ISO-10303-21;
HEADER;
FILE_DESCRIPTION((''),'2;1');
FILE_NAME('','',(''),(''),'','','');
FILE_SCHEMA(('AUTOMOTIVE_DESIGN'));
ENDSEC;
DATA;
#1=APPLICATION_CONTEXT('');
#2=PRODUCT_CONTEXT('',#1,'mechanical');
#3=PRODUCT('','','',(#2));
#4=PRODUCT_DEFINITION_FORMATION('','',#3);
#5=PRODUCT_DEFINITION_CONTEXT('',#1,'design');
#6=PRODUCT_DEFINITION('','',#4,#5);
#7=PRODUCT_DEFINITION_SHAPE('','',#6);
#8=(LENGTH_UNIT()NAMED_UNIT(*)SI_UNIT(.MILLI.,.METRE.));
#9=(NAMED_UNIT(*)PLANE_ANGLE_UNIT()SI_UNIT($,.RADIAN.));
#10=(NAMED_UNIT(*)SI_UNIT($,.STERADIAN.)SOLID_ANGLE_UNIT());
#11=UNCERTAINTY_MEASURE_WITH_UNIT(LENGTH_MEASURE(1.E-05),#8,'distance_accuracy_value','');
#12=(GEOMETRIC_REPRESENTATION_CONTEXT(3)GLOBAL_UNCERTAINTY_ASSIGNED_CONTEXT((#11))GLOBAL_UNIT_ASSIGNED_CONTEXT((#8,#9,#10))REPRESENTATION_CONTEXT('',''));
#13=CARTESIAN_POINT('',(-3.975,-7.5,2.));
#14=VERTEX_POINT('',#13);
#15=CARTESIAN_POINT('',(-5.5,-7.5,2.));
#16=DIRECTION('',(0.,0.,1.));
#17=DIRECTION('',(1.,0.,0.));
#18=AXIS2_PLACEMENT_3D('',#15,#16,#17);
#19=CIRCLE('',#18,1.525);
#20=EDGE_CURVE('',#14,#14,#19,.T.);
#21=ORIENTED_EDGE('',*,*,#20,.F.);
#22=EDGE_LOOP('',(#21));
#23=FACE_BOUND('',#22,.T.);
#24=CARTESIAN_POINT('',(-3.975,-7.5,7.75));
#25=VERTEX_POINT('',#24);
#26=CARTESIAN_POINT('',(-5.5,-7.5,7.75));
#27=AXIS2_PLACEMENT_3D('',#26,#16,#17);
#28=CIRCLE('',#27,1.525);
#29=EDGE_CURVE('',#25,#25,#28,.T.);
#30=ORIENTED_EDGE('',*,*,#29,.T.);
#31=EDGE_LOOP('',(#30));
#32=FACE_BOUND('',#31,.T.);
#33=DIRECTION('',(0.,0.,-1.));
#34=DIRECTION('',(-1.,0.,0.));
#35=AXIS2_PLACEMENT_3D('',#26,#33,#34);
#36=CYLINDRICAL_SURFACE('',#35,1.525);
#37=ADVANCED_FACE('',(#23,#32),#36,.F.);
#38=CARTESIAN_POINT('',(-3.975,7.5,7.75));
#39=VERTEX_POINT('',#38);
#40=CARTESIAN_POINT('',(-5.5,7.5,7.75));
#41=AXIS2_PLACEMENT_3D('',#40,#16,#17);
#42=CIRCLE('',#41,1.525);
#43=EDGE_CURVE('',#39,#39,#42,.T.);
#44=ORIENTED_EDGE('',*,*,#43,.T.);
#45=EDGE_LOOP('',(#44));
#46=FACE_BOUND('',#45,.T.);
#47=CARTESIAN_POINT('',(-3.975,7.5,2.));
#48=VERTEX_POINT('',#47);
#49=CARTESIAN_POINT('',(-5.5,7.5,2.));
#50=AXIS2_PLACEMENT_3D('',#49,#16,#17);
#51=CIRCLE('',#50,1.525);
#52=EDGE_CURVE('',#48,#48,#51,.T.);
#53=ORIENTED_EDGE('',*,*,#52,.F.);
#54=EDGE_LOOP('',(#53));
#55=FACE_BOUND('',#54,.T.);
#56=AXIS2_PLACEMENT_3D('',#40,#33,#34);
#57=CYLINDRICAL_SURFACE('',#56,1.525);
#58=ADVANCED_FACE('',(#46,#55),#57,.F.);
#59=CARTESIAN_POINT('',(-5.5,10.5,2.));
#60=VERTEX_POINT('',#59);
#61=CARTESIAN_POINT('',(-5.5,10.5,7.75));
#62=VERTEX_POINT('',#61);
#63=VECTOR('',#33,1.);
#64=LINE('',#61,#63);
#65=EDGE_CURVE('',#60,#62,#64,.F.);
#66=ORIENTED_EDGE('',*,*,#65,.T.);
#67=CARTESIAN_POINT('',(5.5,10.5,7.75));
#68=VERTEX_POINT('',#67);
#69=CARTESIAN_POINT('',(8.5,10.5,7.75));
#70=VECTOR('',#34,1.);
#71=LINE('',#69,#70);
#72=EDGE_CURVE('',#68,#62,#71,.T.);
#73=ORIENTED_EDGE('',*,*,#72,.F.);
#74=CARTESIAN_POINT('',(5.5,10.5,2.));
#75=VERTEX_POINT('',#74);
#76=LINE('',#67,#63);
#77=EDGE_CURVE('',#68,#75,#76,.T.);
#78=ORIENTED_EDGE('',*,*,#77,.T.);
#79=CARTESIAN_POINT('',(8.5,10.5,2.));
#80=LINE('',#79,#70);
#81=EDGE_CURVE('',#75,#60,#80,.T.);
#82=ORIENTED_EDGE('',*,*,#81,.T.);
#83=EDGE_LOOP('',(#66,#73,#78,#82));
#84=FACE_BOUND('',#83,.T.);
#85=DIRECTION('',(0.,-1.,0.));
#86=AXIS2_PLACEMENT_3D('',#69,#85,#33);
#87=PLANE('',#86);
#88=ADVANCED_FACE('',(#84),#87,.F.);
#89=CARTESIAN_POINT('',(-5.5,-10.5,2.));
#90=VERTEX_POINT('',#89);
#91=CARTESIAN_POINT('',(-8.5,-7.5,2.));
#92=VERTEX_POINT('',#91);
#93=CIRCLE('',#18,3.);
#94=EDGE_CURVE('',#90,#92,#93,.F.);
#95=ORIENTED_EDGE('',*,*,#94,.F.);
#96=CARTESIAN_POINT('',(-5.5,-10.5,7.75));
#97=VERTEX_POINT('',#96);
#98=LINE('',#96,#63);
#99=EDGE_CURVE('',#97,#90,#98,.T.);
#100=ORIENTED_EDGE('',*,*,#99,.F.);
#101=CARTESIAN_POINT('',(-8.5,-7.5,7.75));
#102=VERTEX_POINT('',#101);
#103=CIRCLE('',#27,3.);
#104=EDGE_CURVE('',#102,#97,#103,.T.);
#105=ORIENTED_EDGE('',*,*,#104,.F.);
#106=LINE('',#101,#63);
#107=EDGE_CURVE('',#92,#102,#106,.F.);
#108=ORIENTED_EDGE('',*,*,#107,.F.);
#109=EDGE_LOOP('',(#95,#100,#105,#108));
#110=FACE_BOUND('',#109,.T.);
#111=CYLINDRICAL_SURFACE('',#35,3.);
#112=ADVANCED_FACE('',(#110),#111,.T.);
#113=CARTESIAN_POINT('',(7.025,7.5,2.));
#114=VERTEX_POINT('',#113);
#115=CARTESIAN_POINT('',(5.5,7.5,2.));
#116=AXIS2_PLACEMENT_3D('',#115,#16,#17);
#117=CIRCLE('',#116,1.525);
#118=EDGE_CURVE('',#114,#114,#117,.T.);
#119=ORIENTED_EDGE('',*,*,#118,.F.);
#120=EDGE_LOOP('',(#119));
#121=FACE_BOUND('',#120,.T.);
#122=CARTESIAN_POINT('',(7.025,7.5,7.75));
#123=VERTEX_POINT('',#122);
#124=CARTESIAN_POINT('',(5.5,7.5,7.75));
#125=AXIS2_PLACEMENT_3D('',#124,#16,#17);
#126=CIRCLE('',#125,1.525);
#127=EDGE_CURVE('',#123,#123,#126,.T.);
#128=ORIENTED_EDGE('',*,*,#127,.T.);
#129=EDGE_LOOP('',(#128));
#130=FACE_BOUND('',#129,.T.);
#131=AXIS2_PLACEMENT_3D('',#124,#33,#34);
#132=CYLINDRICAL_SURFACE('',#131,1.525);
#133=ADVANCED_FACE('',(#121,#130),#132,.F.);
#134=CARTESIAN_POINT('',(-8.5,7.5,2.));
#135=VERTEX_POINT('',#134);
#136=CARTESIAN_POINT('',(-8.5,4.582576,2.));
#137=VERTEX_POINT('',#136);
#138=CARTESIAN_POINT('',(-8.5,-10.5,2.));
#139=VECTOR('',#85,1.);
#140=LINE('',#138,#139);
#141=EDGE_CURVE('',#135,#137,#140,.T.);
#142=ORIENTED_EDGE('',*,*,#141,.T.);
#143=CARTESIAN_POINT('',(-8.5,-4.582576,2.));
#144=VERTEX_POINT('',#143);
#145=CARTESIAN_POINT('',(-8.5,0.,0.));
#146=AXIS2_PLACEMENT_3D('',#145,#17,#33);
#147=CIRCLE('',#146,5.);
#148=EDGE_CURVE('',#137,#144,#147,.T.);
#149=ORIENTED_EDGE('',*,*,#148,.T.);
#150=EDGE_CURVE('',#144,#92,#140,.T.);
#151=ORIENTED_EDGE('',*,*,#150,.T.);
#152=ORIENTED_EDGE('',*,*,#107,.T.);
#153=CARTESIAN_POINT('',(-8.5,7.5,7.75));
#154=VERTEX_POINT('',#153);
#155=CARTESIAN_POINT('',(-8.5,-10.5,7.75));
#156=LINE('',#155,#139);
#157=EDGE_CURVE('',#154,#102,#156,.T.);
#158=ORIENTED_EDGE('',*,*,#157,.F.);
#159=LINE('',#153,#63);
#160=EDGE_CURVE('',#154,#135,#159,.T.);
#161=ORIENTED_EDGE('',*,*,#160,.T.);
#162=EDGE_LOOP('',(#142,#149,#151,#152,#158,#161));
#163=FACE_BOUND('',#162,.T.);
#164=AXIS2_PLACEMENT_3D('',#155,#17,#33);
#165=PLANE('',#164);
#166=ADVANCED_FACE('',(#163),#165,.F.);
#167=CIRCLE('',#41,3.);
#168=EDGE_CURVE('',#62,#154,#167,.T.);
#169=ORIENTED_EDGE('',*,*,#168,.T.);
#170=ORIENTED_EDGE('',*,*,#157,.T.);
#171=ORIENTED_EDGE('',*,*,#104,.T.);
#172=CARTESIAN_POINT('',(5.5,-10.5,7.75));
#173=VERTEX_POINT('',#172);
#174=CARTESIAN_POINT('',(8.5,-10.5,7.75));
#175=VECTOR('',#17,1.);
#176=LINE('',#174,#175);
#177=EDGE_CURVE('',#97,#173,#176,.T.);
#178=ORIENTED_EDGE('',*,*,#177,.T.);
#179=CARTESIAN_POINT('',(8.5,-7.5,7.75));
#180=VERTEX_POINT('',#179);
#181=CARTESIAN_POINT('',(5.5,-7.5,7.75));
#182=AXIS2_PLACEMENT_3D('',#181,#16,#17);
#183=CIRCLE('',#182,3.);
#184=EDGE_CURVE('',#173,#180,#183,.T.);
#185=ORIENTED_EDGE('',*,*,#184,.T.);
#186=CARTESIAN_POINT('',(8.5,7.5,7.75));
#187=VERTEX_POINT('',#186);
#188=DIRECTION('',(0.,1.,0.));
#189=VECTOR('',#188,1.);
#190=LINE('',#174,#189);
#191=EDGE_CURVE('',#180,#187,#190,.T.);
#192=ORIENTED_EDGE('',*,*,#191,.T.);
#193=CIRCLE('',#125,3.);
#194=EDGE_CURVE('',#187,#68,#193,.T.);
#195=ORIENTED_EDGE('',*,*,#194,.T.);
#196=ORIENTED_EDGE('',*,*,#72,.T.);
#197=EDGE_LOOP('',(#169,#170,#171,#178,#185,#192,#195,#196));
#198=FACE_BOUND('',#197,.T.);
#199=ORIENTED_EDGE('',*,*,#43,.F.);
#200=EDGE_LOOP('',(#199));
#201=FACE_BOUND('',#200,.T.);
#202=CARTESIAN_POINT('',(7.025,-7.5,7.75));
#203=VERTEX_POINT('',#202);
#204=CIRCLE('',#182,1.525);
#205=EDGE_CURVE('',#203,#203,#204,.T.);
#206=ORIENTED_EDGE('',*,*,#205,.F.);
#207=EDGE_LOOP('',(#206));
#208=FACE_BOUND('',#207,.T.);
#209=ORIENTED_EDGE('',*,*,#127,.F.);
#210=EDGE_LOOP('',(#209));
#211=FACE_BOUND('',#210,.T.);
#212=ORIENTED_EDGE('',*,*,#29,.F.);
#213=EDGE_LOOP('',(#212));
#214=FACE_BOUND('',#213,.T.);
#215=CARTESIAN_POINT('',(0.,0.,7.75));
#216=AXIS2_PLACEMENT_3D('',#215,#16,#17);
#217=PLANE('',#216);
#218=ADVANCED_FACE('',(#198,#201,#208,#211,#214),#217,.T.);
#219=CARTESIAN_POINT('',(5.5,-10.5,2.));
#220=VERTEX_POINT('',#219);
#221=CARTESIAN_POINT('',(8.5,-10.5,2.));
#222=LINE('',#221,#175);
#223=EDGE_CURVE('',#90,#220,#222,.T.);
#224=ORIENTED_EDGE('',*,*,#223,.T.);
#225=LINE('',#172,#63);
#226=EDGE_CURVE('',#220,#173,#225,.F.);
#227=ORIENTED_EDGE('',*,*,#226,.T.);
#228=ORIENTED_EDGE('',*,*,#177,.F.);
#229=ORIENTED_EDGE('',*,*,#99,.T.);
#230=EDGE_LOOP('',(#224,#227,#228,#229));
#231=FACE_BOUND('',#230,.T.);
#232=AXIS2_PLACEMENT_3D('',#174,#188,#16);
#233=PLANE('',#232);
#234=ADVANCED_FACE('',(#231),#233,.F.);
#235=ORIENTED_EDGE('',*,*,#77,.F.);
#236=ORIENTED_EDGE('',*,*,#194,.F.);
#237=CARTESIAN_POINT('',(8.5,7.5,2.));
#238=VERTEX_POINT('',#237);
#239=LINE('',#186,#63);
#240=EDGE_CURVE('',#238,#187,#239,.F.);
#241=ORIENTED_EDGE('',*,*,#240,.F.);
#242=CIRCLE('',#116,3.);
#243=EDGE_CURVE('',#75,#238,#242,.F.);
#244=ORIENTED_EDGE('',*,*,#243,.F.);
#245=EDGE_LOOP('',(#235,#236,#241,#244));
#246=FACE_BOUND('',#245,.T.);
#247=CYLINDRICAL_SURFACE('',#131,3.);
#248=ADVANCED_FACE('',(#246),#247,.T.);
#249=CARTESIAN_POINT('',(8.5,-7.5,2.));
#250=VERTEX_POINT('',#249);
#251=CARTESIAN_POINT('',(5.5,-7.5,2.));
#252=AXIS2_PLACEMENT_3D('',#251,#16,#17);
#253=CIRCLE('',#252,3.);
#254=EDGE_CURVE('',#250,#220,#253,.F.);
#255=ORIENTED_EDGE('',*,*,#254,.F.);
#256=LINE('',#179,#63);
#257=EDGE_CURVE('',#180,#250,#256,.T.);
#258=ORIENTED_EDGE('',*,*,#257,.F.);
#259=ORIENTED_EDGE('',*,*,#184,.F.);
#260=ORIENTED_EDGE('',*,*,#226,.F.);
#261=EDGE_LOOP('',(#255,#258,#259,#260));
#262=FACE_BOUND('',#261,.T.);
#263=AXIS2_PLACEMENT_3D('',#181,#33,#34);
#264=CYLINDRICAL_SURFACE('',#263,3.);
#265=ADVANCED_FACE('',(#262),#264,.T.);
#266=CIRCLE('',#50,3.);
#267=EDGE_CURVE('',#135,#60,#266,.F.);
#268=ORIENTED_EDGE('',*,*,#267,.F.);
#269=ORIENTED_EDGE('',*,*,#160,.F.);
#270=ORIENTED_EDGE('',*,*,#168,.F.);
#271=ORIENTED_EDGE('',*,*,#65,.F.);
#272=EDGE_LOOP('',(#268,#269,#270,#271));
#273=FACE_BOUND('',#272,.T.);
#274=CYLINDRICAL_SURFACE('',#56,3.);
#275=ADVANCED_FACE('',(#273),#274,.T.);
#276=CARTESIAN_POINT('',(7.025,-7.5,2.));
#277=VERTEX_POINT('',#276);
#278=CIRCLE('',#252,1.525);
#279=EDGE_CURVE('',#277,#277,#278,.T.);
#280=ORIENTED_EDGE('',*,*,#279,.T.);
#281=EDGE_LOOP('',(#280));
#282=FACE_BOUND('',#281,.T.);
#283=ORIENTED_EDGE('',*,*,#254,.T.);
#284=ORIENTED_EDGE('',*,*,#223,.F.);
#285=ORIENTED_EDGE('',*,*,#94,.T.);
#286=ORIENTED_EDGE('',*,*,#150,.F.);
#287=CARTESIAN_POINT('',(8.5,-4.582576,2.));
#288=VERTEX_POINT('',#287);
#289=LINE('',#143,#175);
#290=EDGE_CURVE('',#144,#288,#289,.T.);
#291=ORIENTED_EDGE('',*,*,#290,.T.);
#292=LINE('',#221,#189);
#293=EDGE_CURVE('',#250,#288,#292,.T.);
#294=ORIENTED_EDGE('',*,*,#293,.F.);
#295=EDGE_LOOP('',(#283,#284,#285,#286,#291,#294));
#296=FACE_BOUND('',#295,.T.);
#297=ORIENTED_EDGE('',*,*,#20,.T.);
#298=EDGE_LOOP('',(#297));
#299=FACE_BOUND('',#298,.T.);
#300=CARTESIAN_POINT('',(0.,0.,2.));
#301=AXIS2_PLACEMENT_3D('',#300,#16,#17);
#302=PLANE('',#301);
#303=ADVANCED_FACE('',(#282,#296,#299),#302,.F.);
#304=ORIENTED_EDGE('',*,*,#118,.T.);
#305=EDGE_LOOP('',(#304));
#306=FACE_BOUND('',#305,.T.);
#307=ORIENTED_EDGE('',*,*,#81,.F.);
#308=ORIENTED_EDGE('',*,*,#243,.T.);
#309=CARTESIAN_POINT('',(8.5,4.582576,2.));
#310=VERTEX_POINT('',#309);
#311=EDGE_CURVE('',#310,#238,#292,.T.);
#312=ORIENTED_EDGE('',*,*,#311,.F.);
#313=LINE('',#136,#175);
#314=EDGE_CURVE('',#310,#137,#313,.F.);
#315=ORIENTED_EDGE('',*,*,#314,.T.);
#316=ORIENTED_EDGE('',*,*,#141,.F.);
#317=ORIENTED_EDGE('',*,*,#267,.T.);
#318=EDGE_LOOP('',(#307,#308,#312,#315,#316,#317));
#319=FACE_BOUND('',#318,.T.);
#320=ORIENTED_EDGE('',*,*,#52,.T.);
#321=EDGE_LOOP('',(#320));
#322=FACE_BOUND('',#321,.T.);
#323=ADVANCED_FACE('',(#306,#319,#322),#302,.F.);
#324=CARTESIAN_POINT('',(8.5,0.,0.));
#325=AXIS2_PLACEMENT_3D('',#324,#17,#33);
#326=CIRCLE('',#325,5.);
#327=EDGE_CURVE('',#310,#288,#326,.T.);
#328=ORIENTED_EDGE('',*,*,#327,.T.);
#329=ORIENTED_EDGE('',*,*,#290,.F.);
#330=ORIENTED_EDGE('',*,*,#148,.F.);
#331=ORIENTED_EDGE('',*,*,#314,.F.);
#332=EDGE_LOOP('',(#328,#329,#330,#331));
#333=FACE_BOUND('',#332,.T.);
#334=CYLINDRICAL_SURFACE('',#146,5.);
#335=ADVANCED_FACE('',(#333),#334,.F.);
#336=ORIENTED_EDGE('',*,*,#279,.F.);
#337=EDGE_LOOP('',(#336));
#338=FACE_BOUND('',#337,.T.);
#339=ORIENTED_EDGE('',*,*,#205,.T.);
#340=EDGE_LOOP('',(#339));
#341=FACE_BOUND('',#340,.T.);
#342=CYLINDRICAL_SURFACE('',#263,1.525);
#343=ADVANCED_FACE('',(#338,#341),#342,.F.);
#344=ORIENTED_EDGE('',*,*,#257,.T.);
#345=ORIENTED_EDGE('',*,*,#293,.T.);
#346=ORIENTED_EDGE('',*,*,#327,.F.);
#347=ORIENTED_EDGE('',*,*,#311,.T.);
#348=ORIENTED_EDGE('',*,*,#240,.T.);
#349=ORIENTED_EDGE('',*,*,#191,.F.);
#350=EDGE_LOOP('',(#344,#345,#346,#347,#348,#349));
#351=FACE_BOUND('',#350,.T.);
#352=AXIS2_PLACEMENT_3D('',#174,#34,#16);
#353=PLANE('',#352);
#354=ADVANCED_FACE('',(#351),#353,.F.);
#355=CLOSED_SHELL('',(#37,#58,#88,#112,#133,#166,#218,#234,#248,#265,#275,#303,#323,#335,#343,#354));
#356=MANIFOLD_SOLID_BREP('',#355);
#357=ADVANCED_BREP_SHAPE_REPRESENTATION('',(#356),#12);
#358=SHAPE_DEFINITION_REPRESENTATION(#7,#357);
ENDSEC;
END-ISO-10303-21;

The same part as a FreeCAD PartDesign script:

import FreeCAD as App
import Part
import Sketcher

V = App.Vector


def edges_at(feature, points):
    """Names of the edges that pass closest to the given points."""
    edges = feature.Shape.Edges
    near = lambda p: min(range(len(edges)), key=lambda i: edges[i].distToShape(Part.Vertex(*p))[0])
    return sorted({f"Edge{near(p) + 1}" for p in points})

doc = App.newDocument("Part")
body = doc.addObject("PartDesign::Body", "Body")

# Sketch on XY plane
sketch1 = body.newObject("Sketcher::SketchObject", "Sketch")
sketch1.AttachmentSupport = (doc.getObject("XY_Plane"), [""])
sketch1.MapMode = "FlatFace"
sketch1.AttachmentOffset = App.Placement(V(0, 0, 2), App.Rotation())
sketch1.addGeometry(Part.LineSegment(V(-8.5, 10.5, 0), V(-8.5, -10.5, 0)), False)
sketch1.addGeometry(Part.LineSegment(V(-8.5, -10.5, 0), V(8.5, -10.5, 0)), False)
sketch1.addGeometry(Part.LineSegment(V(8.5, -10.5, 0), V(8.5, 10.5, 0)), False)
sketch1.addGeometry(Part.LineSegment(V(8.5, 10.5, 0), V(-8.5, 10.5, 0)), False)
sketch1.addGeometry(Part.Circle(V(-5.5, -7.5, 0), V(0, 0, 1), 1.525), False)
sketch1.addGeometry(Part.Circle(V(5.5, -7.5, 0), V(0, 0, 1), 1.525), False)
sketch1.addGeometry(Part.Circle(V(-5.5, 7.5, 0), V(0, 0, 1), 1.525), False)
sketch1.addGeometry(Part.Circle(V(5.5, 7.5, 0), V(0, 0, 1), 1.525), False)
sketch1.addConstraint(Sketcher.Constraint("Coincident", 0, 2, 1, 1))
sketch1.addConstraint(Sketcher.Constraint("Coincident", 1, 2, 2, 1))
sketch1.addConstraint(Sketcher.Constraint("Coincident", 2, 2, 3, 1))
sketch1.addConstraint(Sketcher.Constraint("Coincident", 3, 2, 0, 1))
sketch1.addConstraint(Sketcher.Constraint("Vertical", 0))
sketch1.addConstraint(Sketcher.Constraint("Horizontal", 1))
sketch1.addConstraint(Sketcher.Constraint("Vertical", 2))
sketch1.addConstraint(Sketcher.Constraint("Horizontal", 3))
sketch1.addConstraint(Sketcher.Constraint("Equal", 4, 5))
sketch1.addConstraint(Sketcher.Constraint("Equal", 5, 6))
sketch1.addConstraint(Sketcher.Constraint("Equal", 6, 7))
sketch1.addConstraint(Sketcher.Constraint("Symmetric", 5, 3, 6, 3, -1, 1))
sketch1.addConstraint(Sketcher.Constraint("Symmetric", 4, 3, 7, 3, -1, 1))
sketch1.addConstraint(Sketcher.Constraint("Symmetric", 0, 2, 2, 2, -1, 1))
sketch1.addConstraint(Sketcher.Constraint("Symmetric", 4, 3, 5, 3, -2))
sketch1.addConstraint(Sketcher.Constraint("Diameter", 4, 3.05))
sketch1.addConstraint(Sketcher.Constraint("DistanceX", 1, 1, 1, 2, 17.0))
sketch1.addConstraint(Sketcher.Constraint("DistanceY", 0, 2, 0, 1, 21.0))
sketch1.addConstraint(Sketcher.Constraint("DistanceX", 4, 3, 5, 3, 11.0))
sketch1.addConstraint(Sketcher.Constraint("DistanceY", 4, 3, 6, 3, 15.0))
pad1 = body.newObject("PartDesign::Pad", "Pad")
pad1.Profile = sketch1
pad1.Length = 5.75

# Sketch on YZ plane
sketch2 = body.newObject("Sketcher::SketchObject", "Sketch001")
sketch2.AttachmentSupport = (doc.getObject("YZ_Plane"), [""])
sketch2.MapMode = "FlatFace"
sketch2.AttachmentOffset = App.Placement(V(0, 0, 8.5), App.Rotation())
sketch2.addGeometry(Part.Circle(V(0, 0, 0), V(0, 0, 1), 5), False)
sketch2.addConstraint(Sketcher.Constraint("Coincident", 0, 3, -1, 1))
sketch2.addConstraint(Sketcher.Constraint("Diameter", 0, 10.0))
pocket1 = body.newObject("PartDesign::Pocket", "Pocket")
pocket1.Profile = sketch2
pocket1.Type = "ThroughAll"
doc.recompute()

fillet = body.newObject("PartDesign::Fillet", "Fillet")
fillet.Base = (pocket1, edges_at(pocket1, [
    (-8.5, 10.5, 4.875),
    (8.5, 10.5, 4.875),
    (8.5, -10.5, 4.875),
    (-8.5, -10.5, 4.875),
]))
fillet.Radius = 3

doc.recompute()
